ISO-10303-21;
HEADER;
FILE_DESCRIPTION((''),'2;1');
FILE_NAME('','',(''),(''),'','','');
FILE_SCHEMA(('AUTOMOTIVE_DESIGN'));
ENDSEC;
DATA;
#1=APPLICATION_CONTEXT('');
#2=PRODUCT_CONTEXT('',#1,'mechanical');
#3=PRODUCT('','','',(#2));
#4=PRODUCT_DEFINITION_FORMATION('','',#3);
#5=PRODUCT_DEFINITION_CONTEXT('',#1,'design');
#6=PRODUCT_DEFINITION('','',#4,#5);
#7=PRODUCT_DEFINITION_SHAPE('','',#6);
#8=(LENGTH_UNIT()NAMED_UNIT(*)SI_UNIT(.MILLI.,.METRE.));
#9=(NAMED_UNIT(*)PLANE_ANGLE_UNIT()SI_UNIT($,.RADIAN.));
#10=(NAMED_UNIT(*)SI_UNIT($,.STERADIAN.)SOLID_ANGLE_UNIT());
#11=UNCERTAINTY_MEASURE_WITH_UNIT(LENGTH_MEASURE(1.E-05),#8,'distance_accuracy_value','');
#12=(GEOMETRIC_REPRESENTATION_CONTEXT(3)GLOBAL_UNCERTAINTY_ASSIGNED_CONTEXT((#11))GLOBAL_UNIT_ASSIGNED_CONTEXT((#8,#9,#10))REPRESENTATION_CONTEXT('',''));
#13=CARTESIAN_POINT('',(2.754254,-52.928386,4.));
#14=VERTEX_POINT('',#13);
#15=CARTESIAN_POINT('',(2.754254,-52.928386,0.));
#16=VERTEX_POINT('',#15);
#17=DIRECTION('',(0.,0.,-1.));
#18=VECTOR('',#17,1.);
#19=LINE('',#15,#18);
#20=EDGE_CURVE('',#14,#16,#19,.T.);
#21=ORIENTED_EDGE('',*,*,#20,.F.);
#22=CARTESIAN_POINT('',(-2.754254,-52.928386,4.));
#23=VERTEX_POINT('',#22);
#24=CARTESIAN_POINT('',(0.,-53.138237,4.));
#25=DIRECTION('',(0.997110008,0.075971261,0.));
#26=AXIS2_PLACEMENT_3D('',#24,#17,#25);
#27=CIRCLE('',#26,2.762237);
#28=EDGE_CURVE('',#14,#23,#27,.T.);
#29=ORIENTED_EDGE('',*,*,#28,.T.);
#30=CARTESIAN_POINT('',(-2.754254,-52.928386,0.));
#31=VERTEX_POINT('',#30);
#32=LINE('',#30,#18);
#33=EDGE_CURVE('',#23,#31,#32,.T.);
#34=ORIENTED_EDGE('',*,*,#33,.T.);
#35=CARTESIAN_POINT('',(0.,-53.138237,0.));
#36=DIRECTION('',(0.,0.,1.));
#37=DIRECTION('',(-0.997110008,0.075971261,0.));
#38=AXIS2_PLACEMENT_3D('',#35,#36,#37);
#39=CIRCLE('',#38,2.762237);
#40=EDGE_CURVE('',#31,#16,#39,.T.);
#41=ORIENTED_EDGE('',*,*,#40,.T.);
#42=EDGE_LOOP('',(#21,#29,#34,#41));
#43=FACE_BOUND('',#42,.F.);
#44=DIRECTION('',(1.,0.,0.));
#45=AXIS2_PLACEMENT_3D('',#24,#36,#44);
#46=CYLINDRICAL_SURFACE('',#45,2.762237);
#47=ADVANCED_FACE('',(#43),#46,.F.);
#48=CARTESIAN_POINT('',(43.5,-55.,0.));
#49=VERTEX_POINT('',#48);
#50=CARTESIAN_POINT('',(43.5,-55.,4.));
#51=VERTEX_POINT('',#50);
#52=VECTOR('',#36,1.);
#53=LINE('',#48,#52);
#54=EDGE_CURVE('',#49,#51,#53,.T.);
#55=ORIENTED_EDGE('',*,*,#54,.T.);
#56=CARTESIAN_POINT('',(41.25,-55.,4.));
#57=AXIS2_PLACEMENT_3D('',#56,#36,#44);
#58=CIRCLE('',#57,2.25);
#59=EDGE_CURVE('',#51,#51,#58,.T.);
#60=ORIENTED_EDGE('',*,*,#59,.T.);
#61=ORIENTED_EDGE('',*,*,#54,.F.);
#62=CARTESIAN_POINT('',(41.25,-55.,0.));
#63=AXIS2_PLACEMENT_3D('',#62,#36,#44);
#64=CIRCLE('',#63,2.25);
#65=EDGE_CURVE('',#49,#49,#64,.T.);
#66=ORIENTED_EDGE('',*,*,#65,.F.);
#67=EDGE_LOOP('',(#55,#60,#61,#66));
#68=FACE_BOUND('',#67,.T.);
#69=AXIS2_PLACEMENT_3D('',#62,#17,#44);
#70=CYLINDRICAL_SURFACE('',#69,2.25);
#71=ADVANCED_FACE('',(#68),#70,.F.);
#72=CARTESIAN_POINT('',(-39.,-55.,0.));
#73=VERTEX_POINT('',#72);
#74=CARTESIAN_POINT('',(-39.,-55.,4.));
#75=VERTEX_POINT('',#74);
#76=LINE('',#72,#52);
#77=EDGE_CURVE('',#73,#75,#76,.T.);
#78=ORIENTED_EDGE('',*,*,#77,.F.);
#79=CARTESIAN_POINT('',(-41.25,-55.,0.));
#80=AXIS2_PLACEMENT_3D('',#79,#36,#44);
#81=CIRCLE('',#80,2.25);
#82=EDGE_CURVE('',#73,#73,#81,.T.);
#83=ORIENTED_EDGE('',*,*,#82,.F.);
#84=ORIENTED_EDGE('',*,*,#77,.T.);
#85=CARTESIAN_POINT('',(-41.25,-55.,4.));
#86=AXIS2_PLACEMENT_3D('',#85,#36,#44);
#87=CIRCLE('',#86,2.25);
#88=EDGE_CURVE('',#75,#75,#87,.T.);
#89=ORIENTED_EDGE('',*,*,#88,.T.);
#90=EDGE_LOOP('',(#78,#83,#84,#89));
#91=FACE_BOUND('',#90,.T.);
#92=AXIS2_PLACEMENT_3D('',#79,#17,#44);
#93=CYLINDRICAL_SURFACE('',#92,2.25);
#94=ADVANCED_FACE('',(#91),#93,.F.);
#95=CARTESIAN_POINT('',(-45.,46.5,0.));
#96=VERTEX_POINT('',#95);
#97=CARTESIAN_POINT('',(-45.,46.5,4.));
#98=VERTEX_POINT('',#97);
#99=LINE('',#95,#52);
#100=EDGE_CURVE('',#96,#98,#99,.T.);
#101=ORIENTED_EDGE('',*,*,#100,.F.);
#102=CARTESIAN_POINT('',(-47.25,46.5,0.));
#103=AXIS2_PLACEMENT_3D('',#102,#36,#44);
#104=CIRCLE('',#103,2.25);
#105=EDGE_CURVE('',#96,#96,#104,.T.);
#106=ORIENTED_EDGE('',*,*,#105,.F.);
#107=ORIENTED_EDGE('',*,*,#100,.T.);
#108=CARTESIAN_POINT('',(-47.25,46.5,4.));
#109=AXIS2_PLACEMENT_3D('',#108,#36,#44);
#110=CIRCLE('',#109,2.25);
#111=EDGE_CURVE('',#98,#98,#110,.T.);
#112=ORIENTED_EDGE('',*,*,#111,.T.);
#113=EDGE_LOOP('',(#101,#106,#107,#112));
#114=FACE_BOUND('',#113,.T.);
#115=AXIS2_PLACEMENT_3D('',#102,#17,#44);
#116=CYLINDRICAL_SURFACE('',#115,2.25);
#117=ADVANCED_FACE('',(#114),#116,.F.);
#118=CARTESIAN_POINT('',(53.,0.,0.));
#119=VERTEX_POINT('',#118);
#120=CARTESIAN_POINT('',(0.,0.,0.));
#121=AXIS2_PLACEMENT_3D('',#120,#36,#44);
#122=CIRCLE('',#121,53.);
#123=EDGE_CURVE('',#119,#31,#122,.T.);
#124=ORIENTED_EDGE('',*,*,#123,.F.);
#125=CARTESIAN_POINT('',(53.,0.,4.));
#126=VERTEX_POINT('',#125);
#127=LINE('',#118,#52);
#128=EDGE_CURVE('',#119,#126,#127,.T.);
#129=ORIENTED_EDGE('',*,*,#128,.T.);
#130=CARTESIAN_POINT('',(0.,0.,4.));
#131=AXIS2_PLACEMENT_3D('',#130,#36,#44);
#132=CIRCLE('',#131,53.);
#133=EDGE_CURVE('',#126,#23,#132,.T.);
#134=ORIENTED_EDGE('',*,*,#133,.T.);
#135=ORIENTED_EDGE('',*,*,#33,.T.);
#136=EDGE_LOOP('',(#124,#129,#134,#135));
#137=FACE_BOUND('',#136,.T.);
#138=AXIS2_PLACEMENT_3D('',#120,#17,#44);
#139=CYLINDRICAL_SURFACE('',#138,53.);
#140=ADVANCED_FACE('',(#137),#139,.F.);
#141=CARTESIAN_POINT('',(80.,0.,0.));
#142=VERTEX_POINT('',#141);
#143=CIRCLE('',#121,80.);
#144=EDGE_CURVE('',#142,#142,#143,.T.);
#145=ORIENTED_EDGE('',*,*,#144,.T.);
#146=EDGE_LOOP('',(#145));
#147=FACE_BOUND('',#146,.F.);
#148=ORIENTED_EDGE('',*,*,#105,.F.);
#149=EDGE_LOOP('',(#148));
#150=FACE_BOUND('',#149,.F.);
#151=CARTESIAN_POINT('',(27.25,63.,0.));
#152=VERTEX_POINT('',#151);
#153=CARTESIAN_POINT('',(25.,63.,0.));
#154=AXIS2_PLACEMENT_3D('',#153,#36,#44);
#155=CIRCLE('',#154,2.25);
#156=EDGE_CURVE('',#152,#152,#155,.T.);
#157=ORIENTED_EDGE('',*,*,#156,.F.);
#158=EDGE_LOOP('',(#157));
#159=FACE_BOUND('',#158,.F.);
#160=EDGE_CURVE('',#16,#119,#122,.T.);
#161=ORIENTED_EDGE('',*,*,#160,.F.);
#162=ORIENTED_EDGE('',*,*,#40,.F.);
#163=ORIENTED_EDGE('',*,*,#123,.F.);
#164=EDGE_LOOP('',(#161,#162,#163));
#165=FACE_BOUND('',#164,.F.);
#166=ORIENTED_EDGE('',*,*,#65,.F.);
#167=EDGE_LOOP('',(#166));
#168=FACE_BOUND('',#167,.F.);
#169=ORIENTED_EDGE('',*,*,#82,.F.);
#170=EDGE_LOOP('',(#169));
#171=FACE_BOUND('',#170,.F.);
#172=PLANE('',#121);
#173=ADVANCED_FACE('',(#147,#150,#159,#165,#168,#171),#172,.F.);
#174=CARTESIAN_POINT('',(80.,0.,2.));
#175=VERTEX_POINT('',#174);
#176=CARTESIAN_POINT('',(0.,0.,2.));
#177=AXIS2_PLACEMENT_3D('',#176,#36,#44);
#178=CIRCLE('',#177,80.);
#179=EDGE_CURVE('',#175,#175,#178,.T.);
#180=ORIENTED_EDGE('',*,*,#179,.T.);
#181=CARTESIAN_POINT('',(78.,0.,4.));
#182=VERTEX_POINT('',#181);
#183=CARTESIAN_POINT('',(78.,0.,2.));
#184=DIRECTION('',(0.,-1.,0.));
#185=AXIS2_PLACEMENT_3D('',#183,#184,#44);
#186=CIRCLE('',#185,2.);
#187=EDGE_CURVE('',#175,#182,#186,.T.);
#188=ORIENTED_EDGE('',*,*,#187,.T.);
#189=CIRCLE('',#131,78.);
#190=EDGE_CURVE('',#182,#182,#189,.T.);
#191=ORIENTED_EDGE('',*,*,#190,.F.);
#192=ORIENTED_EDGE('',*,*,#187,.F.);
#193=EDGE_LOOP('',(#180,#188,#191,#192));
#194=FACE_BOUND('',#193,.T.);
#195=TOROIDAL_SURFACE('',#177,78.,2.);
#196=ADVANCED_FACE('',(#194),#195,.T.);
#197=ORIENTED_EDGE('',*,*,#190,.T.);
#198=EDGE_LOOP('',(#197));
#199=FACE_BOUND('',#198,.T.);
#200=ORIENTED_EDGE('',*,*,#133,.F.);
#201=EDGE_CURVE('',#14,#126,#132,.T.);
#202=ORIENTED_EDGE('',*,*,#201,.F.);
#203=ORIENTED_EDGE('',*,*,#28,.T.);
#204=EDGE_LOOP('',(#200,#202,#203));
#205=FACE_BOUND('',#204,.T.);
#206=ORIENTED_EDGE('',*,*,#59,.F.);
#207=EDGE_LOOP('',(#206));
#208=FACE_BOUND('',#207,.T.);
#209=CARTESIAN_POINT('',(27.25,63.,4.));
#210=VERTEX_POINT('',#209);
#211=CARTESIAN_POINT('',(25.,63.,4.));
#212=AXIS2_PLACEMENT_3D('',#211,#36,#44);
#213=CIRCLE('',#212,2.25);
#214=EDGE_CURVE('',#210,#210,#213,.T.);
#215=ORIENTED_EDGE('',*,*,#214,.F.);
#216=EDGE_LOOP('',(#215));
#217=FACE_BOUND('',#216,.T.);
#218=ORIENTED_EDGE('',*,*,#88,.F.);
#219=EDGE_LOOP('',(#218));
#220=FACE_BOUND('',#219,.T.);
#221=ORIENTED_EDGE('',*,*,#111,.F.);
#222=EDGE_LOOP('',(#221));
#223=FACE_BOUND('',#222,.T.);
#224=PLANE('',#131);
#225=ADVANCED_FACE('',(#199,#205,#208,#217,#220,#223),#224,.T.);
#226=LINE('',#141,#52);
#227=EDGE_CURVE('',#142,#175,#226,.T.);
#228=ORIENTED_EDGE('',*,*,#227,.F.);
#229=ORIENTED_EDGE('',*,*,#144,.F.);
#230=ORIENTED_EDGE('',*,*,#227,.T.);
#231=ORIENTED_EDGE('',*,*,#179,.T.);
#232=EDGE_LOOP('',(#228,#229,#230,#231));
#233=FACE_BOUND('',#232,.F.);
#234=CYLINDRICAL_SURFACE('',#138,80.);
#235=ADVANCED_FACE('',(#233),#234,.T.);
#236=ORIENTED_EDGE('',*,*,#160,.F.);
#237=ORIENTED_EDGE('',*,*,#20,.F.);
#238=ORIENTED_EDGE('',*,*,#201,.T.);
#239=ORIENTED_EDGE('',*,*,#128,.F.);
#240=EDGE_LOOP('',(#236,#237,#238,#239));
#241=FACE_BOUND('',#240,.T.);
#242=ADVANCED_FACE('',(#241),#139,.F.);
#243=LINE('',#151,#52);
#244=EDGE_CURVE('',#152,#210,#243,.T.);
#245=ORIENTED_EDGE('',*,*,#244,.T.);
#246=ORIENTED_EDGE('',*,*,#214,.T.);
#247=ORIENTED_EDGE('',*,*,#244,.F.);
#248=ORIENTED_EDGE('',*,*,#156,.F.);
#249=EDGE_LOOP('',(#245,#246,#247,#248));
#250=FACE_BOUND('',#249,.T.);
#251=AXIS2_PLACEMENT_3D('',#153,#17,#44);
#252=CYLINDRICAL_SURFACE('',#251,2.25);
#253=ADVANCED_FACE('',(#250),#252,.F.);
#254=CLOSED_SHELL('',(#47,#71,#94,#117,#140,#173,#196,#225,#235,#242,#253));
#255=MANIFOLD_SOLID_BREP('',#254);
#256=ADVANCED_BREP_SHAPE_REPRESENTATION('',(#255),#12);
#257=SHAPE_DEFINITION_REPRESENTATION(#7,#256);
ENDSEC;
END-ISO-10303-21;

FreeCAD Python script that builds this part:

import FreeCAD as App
import Part
import Sketcher
from FreeCAD import Vector


def edges_at(feature, points):
    """Names of the edges that pass closest to the given points."""
    edges = feature.Shape.Edges
    near = lambda p: min(range(len(edges)), key=lambda i: edges[i].distToShape(Part.Vertex(*p))[0])
    return sorted({f"Edge{near(p) + 1}" for p in points})

doc = App.newDocument("Part")
body = doc.addObject("PartDesign::Body", "Body")

sketch1 = body.newObject("Sketcher::SketchObject", "Sketch")
sketch1.AttachmentSupport = (doc.getObject("XY_Plane"), [""])
sketch1.MapMode = "FlatFace"
sketch1.addGeometry(Part.Circle(Vector(0, 0, 0), Vector(0, 0, 1), 80), False)
sketch1.addGeometry(Part.Circle(Vector(-41.2, -55, 0), Vector(0, 0, 1), 2.2), False)
sketch1.addGeometry(Part.Circle(Vector(41.2, -55, 0), Vector(0, 0, 1), 2.2), False)
sketch1.addGeometry(Part.Circle(Vector(0, 0, 0), Vector(0, 0, 1), 53), False)
sketch1.addGeometry(Part.Circle(Vector(-47.2, 46.5, 0), Vector(0, 0, 1), 2.2), False)
sketch1.addGeometry(Part.Circle(Vector(25, 63, 0), Vector(0, 0, 1), 2.2), False)
sketch1.addConstraint(Sketcher.Constraint("Coincident", 0, 3, -1, 1))
sketch1.addConstraint(Sketcher.Constraint("Coincident", 3, 3, -1, 1))
sketch1.addConstraint(Sketcher.Constraint("Equal", 1, 2))
sketch1.addConstraint(Sketcher.Constraint("Equal", 2, 4))
sketch1.addConstraint(Sketcher.Constraint("Equal", 4, 5))
sketch1.addConstraint(Sketcher.Constraint("Symmetric", 1, 3, 2, 3, -2))
sketch1.addConstraint(Sketcher.Constraint("Diameter", 0, 160.0))
sketch1.addConstraint(Sketcher.Constraint("Diameter", 3, 106.0))
sketch1.addConstraint(Sketcher.Constraint("Diameter", 1, 4.5))
sketch1.addConstraint(Sketcher.Constraint("DistanceY", 1, 3, -1, 1, 55.0))
sketch1.addConstraint(Sketcher.Constraint("DistanceX", -1, 1, 5, 3, 25.0))
sketch1.addConstraint(Sketcher.Constraint("DistanceY", -1, 1, 5, 3, 63.0))
sketch1.addConstraint(Sketcher.Constraint("DistanceX", 4, 3, 1, 3, 6.0))
sketch1.addConstraint(Sketcher.Constraint("DistanceY", -1, 1, 4, 3, 46.5))
sketch1.addConstraint(Sketcher.Constraint("DistanceX", 1, 3, 2, 3, 82.5))
pad1 = body.newObject("PartDesign::Pad", "Pad")
pad1.Profile = sketch1
pad1.Length = 4

sketch2 = body.newObject("Sketcher::SketchObject", "Sketch001")
sketch2.AttachmentSupport = (doc.getObject("XY_Plane"), [""])
sketch2.MapMode = "FlatFace"
sketch2.AttachmentOffset = App.Placement(Vector(0, 0, 4), App.Rotation())
sketch2.addGeometry(Part.Circle(Vector(0, -53.1, 0), Vector(0, 0, 1), 2.8), False)
sketch2.addConstraint(Sketcher.Constraint("PointOnObject", 0, 3, -2))
sketch2.addConstraint(Sketcher.Constraint("Diameter", 0, 5.524474))
sketch2.addConstraint(Sketcher.Constraint("DistanceY", 0, 3, -1, 1, 53.138237))
pocket1 = body.newObject("PartDesign::Pocket", "Pocket")
pocket1.Profile = sketch2
pocket1.Type = "ThroughAll"
doc.recompute()

fillet = body.newObject("PartDesign::Fillet", "Fillet")
fillet.Base = (pocket1, edges_at(pocket1, [(-80, 0, 4)]))
fillet.Radius = 2

doc.recompute()
